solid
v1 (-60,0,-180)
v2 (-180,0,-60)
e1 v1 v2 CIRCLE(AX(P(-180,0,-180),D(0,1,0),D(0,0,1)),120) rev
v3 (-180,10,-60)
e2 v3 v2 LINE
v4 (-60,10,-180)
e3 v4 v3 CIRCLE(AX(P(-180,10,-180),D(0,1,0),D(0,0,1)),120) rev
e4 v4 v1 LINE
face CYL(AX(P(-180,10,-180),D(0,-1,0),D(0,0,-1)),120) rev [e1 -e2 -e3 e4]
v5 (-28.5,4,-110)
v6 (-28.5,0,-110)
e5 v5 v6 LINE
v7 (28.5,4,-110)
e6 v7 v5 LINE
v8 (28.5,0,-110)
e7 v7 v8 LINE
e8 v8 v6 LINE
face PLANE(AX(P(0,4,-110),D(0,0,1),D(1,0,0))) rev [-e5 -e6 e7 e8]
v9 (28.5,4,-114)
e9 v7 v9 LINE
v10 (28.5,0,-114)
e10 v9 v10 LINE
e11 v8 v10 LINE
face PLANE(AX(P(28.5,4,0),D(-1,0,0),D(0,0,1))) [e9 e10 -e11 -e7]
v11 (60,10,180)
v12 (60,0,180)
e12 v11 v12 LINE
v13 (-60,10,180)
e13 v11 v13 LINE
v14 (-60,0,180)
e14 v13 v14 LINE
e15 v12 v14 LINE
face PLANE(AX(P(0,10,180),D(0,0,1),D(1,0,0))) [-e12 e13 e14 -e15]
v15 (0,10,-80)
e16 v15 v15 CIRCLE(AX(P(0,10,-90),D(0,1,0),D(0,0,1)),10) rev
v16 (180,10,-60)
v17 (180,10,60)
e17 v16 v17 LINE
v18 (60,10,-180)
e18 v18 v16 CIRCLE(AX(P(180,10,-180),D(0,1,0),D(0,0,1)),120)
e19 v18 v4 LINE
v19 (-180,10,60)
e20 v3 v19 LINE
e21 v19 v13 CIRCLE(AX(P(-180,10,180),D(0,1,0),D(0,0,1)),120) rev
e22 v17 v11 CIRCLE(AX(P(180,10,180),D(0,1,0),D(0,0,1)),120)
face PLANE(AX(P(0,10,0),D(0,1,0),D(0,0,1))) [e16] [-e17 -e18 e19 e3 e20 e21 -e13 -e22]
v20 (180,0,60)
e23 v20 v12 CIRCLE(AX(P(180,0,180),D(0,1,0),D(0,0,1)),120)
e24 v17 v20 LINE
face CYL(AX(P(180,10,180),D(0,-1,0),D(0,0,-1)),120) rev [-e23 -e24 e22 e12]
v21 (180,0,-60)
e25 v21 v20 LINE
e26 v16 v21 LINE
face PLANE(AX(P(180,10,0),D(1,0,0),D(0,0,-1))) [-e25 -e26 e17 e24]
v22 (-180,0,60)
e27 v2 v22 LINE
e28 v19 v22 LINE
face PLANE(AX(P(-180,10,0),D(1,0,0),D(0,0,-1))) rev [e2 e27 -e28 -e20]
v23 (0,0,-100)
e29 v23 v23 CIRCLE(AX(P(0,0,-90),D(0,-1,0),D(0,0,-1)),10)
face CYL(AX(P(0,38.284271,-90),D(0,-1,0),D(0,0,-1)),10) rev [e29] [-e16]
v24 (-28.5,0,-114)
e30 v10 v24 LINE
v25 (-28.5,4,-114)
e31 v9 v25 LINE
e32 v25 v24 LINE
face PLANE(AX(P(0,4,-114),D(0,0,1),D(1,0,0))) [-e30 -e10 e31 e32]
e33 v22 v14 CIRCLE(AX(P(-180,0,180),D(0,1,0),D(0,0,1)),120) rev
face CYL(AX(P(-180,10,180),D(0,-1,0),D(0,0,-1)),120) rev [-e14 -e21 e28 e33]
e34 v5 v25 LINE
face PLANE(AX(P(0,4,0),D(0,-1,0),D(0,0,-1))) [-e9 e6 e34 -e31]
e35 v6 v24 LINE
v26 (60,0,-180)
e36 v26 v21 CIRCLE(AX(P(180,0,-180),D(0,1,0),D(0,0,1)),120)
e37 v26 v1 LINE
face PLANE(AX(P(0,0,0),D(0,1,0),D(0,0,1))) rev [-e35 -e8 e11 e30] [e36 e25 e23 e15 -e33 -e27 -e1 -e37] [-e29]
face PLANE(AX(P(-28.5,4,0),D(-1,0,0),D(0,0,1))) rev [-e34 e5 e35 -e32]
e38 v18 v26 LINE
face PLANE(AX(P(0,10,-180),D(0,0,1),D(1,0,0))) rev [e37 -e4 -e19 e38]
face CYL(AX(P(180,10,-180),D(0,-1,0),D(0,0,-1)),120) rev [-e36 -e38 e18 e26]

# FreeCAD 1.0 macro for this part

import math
import FreeCAD as App
import Part
import Sketcher
from FreeCAD import Vector


def add_polygon(sketch, points):
    """Adds a closed chain of lines whose ends are joined by coincident constraints."""
    first, n = sketch.GeometryCount, len(points)
    for a, b in zip(points, points[1:] + points[:1]):
        sketch.addGeometry(Part.LineSegment(App.Vector(*a, 0), App.Vector(*b, 0)), False)
    for i in range(n):
        sketch.addConstraint(Sketcher.Constraint("Coincident", first + i, 2, first + (i + 1) % n, 1))

doc = App.newDocument("Part")
body = doc.addObject("PartDesign::Body", "Body")

sketch1 = doc.addObject("Sketcher::SketchObject", "Sketch")
body.addObject(sketch1)
sketch1.AttachmentSupport = (doc.XZ_Plane, [""])
sketch1.MapMode = "FlatFace"
sketch1.addGeometry([
    Part.LineSegment(Vector(-60, 180, 0), Vector(60, 180, 0)),
    Part.ArcOfCircle(Part.Circle(Vector(180, 180, 0), Vector(0, 0, 1), 120), math.radians(-180), math.radians(-90)),
    Part.LineSegment(Vector(180, 60, 0), Vector(180, -60, 0)),
    Part.ArcOfCircle(Part.Circle(Vector(180, -180, 0), Vector(0, 0, 1), 120), math.radians(90), math.radians(180)),
    Part.LineSegment(Vector(60, -180, 0), Vector(-60, -180, 0)),
    Part.ArcOfCircle(Part.Circle(Vector(-180, -180, 0), Vector(0, 0, 1), 120), math.radians(0), math.radians(90)),
    Part.LineSegment(Vector(-180, -60, 0), Vector(-180, 60, 0)),
    Part.ArcOfCircle(Part.Circle(Vector(-180, 180, 0), Vector(0, 0, 1), 120), math.radians(-90), math.radians(0)),
], False)
sketch1.addConstraint([
    Sketcher.Constraint("Coincident", 0, 2, 1, 1),
    Sketcher.Constraint("Coincident", 1, 2, 2, 1),
    Sketcher.Constraint("Coincident", 2, 2, 3, 1),
    Sketcher.Constraint("Coincident", 3, 2, 4, 1),
    Sketcher.Constraint("Coincident", 4, 2, 5, 1),
    Sketcher.Constraint("Coincident", 5, 2, 6, 1),
    Sketcher.Constraint("Coincident", 6, 2, 7, 1),
    Sketcher.Constraint("Coincident", 7, 2, 0, 1),
    Sketcher.Constraint("Horizontal", 0),
    Sketcher.Constraint("Vertical", 2),
    Sketcher.Constraint("Horizontal", 4),
    Sketcher.Constraint("Vertical", 6),
    Sketcher.Constraint("Equal", 1, 3),
    Sketcher.Constraint("Equal", 3, 5),
    Sketcher.Constraint("Equal", 5, 7),
    Sketcher.Constraint("Symmetric", 1, 3, 5, 3, -1, 1),
    Sketcher.Constraint("Symmetric", 3, 3, 7, 3, -1, 1),
    Sketcher.Constraint("Symmetric", 3, 3, 5, 3, -2),
    Sketcher.Constraint("Horizontal", 7, 3, 0, 2),
    Sketcher.Constraint("Horizontal", 5, 3, 3, 2),
    Sketcher.Constraint("Vertical", 3, 3, 1, 2),
    Sketcher.Constraint("Vertical", 7, 3, 5, 2),
    Sketcher.Constraint("Equal", 4, 2),
    Sketcher.Constraint("Radius", 1, 120.0),
    Sketcher.Constraint("DistanceX", 0, 1, 0, 2, 120.0),
])
pad1 = doc.addObject("PartDesign::Pad", "Pad")
body.addObject(pad1)
pad1.Profile = sketch1
pad1.Length = 10
pad1.Reversed = True

sketch2 = doc.addObject("Sketcher::SketchObject", "Sketch001")
body.addObject(sketch2)
sketch2.AttachmentSupport = (doc.XZ_Plane, [""])
sketch2.MapMode = "FlatFace"
sketch2.addGeometry(Part.Circle(Vector(0, -90, 0), Vector(0, 0, 1), 10), False)
sketch2.addConstraint([
    Sketcher.Constraint("PointOnObject", 0, 3, -2),
    Sketcher.Constraint("Diameter", 0, 20.0),
    Sketcher.Constraint("DistanceY", 0, 3, -1, 1, 90.0),
])
pocket1 = doc.addObject("PartDesign::Pocket", "Pocket")
body.addObject(pocket1)
pocket1.Profile = sketch2
pocket1.Length = 10

sketch3 = doc.addObject("Sketcher::SketchObject", "Sketch002")
body.addObject(sketch3)
sketch3.AttachmentSupport = (doc.XZ_Plane, [""])
sketch3.MapMode = "FlatFace"
add_polygon(sketch3, [(-28.5, -110), (-28.5, -114), (28.5, -114), (28.5, -110)])
sketch3.addConstraint([
    Sketcher.Constraint("Vertical", 0),
    Sketcher.Constraint("Horizontal", 1),
    Sketcher.Constraint("Vertical", 2),
    Sketcher.Constraint("Horizontal", 3),
    Sketcher.Constraint("DistanceX", 1, 1, 1, 2, 57.0),
    Sketcher.Constraint("DistanceY", 0, 2, 0, 1, 4.0),
    Sketcher.Constraint("DistanceY", 0, 2, -1, 1, 114.0),
    Sketcher.Constraint("DistanceX", 0, 2, -1, 1, 28.5),
])
pocket2 = doc.addObject("PartDesign::Pocket", "Pocket001")
body.addObject(pocket2)
pocket2.Profile = sketch3
pocket2.Length = 4

doc.recompute()
